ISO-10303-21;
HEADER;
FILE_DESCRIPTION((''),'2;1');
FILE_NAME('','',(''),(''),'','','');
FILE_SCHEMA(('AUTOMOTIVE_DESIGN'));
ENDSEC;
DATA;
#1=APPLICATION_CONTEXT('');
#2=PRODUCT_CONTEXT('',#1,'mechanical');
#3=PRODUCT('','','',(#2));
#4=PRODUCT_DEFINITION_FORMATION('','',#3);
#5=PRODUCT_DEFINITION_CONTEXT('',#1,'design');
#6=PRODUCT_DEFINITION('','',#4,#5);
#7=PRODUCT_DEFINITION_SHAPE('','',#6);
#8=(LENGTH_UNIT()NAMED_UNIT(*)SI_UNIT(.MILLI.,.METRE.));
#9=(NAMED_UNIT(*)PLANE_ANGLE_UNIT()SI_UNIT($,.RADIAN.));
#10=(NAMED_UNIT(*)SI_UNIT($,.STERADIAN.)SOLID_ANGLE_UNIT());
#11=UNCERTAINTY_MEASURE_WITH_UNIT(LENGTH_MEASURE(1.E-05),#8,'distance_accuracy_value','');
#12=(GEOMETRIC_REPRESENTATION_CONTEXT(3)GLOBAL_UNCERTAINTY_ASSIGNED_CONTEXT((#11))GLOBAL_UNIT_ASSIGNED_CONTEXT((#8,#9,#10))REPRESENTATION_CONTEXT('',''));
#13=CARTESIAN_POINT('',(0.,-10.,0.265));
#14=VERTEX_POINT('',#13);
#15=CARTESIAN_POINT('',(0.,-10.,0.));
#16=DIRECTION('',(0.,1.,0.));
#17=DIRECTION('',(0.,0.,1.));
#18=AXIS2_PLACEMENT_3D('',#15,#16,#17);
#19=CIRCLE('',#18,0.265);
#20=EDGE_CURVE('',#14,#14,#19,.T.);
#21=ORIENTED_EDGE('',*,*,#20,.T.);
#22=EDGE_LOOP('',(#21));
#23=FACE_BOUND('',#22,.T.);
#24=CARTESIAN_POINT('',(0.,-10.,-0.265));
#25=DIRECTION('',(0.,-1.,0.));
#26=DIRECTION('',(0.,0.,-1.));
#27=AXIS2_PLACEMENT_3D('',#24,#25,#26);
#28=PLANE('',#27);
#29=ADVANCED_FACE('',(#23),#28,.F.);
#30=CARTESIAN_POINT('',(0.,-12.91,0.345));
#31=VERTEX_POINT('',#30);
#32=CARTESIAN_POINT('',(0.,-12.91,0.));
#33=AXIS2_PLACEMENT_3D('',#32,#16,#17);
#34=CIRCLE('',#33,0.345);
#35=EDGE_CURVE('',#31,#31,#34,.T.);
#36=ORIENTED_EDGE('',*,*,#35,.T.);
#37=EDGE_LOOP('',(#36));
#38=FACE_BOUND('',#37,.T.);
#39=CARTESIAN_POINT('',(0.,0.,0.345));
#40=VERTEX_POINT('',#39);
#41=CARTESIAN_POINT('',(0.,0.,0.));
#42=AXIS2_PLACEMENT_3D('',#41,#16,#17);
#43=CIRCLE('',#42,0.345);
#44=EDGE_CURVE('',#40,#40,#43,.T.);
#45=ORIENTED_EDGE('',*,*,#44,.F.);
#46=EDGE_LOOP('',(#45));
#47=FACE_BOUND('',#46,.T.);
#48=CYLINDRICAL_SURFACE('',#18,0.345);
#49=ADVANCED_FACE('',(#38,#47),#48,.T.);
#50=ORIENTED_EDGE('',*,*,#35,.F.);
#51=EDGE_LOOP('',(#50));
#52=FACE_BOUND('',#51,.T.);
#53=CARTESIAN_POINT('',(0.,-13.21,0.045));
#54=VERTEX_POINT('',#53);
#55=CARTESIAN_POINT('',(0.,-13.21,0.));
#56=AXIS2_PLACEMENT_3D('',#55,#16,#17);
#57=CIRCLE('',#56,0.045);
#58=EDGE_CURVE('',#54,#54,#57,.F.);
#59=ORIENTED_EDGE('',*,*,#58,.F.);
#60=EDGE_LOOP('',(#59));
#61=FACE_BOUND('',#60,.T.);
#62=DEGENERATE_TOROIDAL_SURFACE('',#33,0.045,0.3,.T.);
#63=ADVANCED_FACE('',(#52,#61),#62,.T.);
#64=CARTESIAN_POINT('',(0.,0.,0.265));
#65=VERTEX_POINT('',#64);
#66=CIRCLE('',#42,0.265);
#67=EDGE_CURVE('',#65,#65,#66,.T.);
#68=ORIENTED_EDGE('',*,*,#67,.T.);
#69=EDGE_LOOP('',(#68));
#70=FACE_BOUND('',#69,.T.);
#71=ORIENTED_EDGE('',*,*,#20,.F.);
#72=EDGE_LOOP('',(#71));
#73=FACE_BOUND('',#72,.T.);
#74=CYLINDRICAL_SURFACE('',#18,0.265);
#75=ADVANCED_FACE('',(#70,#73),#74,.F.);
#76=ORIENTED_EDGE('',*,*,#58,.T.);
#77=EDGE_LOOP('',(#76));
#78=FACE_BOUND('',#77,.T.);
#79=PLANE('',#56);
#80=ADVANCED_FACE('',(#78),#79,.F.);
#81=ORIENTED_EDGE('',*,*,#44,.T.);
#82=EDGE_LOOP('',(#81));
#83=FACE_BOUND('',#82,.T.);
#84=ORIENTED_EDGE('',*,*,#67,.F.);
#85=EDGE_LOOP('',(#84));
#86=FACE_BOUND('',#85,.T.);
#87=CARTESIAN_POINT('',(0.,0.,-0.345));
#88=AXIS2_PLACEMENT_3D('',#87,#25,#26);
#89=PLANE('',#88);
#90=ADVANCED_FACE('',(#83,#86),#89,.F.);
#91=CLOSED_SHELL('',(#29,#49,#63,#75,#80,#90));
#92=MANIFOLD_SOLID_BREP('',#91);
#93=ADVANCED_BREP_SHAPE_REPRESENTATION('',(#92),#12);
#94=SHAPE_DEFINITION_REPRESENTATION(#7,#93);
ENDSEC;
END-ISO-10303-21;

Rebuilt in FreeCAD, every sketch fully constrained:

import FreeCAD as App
import Part
import Sketcher
Q = App.Units.Quantity


def edges_at(feature, points):
    """Names of the edges that pass closest to the given points."""
    edges = feature.Shape.Edges
    near = lambda p: min(range(len(edges)), key=lambda i: edges[i].distToShape(Part.Vertex(*p))[0])
    return sorted({f"Edge{near(p) + 1}" for p in points})

doc = App.newDocument("Part")
params = doc.addObject("Spreadsheet::Sheet", "Params")
for row, (alias, value) in enumerate([
    ("sketch1_width", "10 mm"),
    ("sketch1_width2", "3.21 mm"),
    ("sketch1_height", "0.08 mm"),
    ("revolution_angle", "360 deg"),
    ("fillet_radius", "0.3 mm"),
], start=1):
    params.set(f"A{row}", alias)
    params.set(f"B{row}", "=" + value)
    params.setAlias(f"B{row}", alias)

body = doc.addObject("PartDesign::Body", "Body")

# Sketch on YZ plane
sketch1 = body.newObject("Sketcher::SketchObject", "Sketch")
sketch1.AttachmentSupport = (doc.getObject("YZ_Plane"), [""])
sketch1.MapMode = "FlatFace"
sketch1.addGeometry([
    Part.LineSegment(App.Vector(0, -0.27, 0), App.Vector(-10, -0.27, 0)),  # 0
    Part.LineSegment(App.Vector(-10, -0.27, 0), App.Vector(-10, 0, 0)),  # 1
    Part.LineSegment(App.Vector(-10, 0, 0), App.Vector(-13.21, 0, 0)),  # 2
    Part.LineSegment(App.Vector(-13.21, 0, 0), App.Vector(-13.21, -0.34, 0)),  # 3
    Part.LineSegment(App.Vector(-13.21, -0.34, 0), App.Vector(0, -0.34, 0)),  # 4
    Part.LineSegment(App.Vector(0, -0.34, 0), App.Vector(0, -0.27, 0)),  # 5
], False)
sketch1.addConstraint([
    Sketcher.Constraint("Coincident", 0, 2, 1, 1),
    Sketcher.Constraint("Coincident", 1, 2, 2, 1),
    Sketcher.Constraint("Coincident", 2, 2, 3, 1),
    Sketcher.Constraint("Coincident", 3, 2, 4, 1),
    Sketcher.Constraint("Coincident", 4, 2, 5, 1),
    Sketcher.Constraint("Coincident", 5, 2, 0, 1),
    Sketcher.Constraint("Horizontal", 0),
    Sketcher.Constraint("Vertical", 1),
    Sketcher.Constraint("Horizontal", 2),
    Sketcher.Constraint("Vertical", 3),
    Sketcher.Constraint("Horizontal", 4),
    Sketcher.Constraint("Vertical", 5),
    Sketcher.Constraint("PointOnObject", 1, 2, -1),
    Sketcher.Constraint("PointOnObject", 4, 2, -2),
    Sketcher.Constraint("DistanceX", 0, 2, 0, 1, Q("10 mm")),
    Sketcher.Constraint("DistanceX", 2, 2, 2, 1, Q("3.21 mm")),
    Sketcher.Constraint("DistanceY", 5, 1, 5, 2, Q("0.08 mm")),
    Sketcher.Constraint("DistanceY", 1, 1, 1, 2, Q("0.265 mm")),
])
sketch1.setExpression("Constraints[14]", "Params.sketch1_width")
sketch1.setExpression("Constraints[15]", "Params.sketch1_width2")
sketch1.setExpression("Constraints[16]", "Params.sketch1_height")
revolution = body.newObject("PartDesign::Revolution", "Revolution")
revolution.Profile = sketch1
revolution.ReferenceAxis = (sketch1, ["H_Axis"])
revolution.setExpression("Angle", "Params.revolution_angle")
doc.recompute()

fillet = body.newObject("PartDesign::Fillet", "Fillet")
fillet.Base = (revolution, edges_at(revolution, [(0, -13.21, -0.345)]))
fillet.setExpression("Radius", "Params.fillet_radius")

doc.recompute()
